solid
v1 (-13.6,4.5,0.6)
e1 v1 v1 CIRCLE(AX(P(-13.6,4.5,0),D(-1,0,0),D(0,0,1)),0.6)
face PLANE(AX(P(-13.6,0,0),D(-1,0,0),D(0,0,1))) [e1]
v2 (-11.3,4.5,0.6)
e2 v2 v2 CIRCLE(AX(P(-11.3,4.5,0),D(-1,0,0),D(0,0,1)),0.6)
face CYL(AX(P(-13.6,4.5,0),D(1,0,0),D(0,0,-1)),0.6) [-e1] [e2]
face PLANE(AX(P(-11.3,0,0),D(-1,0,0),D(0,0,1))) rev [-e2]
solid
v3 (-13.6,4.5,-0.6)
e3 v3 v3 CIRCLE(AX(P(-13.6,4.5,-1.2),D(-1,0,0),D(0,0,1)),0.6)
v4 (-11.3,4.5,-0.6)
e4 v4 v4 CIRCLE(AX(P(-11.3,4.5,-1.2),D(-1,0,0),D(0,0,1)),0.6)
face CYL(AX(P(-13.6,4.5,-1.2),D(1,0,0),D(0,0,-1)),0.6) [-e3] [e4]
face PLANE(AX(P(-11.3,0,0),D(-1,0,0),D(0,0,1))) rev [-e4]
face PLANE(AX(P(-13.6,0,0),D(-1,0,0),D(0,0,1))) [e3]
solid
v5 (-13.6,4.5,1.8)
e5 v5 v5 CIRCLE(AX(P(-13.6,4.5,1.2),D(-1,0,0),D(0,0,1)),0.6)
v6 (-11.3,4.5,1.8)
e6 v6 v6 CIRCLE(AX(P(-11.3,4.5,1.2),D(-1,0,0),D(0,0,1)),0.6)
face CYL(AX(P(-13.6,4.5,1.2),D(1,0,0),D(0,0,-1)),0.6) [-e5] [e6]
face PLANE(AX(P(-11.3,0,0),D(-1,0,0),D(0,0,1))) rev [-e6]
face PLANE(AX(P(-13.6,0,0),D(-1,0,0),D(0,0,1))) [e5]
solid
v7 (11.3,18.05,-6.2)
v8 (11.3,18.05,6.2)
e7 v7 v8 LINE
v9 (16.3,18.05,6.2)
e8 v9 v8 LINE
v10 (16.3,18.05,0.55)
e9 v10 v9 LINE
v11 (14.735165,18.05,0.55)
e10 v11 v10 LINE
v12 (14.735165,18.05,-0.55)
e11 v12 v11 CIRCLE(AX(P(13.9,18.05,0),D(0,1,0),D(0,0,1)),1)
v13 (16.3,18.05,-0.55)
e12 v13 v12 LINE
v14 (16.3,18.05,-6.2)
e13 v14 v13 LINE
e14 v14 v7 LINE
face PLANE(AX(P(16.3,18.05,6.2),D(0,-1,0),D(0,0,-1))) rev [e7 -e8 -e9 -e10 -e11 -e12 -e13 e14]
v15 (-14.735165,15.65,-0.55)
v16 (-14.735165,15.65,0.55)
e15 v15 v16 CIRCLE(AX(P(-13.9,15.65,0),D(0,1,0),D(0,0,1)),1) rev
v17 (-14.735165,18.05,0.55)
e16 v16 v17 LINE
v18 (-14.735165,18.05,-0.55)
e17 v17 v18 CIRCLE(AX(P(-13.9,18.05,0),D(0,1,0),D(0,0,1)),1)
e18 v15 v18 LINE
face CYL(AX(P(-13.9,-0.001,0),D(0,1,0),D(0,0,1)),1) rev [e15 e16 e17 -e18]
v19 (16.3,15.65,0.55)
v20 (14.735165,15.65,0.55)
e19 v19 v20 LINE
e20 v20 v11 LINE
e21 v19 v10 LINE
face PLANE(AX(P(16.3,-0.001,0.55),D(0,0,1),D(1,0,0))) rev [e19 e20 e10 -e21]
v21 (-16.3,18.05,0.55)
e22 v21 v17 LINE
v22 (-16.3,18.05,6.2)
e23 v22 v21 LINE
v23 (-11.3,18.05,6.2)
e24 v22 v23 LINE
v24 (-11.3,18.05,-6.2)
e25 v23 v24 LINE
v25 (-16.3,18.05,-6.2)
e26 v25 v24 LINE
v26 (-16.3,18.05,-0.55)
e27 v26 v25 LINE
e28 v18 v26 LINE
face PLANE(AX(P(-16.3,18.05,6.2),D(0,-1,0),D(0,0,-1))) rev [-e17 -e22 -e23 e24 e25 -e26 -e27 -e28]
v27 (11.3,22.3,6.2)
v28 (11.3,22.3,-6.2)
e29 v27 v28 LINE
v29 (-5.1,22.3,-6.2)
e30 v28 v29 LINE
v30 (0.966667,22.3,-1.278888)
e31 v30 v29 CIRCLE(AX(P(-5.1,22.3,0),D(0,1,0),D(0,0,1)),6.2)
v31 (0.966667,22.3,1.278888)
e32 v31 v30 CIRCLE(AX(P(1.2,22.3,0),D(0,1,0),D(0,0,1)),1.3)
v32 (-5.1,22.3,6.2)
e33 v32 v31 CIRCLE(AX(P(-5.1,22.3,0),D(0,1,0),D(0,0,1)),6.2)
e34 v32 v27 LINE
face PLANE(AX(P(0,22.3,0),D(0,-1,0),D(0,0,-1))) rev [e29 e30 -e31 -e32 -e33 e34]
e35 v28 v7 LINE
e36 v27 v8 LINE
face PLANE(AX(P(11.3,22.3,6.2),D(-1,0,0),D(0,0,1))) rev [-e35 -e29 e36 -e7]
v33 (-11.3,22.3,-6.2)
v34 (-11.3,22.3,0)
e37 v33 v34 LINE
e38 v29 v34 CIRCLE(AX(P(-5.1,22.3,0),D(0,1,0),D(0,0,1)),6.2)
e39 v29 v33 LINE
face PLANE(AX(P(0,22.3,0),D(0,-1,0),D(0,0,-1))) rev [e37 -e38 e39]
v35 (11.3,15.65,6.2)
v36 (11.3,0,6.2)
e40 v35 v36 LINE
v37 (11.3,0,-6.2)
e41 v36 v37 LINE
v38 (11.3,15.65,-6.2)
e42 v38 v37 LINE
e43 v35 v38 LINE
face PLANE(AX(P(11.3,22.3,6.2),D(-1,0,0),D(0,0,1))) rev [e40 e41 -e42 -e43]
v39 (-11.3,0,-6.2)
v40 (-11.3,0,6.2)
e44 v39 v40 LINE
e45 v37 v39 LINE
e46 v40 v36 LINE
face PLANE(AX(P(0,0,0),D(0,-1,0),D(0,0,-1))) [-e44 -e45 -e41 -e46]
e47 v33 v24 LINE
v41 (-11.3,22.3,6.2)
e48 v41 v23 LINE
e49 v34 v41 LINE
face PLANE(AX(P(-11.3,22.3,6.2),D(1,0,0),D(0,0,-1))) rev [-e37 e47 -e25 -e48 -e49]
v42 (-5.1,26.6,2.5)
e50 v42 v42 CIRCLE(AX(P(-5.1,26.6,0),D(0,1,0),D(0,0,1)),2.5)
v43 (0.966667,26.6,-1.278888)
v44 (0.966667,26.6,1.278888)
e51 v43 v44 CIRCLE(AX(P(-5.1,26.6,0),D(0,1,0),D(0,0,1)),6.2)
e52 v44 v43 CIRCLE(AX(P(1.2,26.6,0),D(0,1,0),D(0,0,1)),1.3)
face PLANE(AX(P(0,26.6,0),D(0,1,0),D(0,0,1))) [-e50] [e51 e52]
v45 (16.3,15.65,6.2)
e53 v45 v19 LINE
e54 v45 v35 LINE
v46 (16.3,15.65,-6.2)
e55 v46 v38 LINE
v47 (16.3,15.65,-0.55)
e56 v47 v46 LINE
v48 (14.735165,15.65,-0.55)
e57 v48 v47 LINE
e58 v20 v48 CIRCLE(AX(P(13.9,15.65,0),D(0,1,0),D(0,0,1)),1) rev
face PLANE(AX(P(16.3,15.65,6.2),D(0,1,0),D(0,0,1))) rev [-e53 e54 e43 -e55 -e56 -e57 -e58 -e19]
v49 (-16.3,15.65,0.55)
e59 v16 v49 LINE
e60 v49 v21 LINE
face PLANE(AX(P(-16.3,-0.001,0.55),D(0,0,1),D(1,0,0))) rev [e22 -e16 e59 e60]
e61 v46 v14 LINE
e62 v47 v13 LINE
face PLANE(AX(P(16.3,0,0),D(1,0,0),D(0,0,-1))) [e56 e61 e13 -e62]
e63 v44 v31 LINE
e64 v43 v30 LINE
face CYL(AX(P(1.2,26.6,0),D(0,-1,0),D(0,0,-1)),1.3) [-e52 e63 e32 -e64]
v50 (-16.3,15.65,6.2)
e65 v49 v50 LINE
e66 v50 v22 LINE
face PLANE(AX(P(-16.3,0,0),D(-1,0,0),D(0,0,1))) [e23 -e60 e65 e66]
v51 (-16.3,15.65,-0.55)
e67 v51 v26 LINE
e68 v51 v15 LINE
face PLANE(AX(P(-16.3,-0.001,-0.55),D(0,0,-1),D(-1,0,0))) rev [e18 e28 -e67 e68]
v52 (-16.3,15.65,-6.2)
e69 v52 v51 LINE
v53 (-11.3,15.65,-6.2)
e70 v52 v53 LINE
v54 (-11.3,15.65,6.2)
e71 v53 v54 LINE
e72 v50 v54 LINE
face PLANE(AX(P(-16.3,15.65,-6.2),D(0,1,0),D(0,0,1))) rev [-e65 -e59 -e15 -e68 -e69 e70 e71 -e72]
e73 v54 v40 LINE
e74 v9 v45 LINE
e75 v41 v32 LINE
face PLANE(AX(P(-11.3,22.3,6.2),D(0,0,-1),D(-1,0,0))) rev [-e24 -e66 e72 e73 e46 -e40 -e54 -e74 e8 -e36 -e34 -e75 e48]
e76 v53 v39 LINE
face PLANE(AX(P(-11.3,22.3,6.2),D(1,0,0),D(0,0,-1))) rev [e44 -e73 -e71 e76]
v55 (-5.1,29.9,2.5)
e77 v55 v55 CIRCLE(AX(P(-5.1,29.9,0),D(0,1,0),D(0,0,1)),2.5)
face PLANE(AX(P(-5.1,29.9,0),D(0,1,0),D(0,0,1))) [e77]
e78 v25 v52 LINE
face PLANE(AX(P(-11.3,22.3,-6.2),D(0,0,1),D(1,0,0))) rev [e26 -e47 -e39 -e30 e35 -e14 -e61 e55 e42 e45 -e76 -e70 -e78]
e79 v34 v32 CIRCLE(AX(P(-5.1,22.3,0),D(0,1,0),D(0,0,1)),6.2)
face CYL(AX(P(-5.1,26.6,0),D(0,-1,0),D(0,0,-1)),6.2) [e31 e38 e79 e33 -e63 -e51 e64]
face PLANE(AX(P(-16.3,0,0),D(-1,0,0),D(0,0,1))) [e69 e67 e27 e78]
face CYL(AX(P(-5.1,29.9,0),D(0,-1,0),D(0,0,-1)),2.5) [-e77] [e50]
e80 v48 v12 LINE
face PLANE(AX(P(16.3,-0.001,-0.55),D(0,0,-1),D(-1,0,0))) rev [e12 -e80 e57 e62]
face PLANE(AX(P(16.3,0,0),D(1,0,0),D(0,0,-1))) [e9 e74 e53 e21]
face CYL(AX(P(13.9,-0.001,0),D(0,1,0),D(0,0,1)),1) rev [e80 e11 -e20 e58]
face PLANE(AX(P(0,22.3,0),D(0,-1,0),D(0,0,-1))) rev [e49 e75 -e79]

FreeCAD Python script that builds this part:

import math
import FreeCAD as App
import Part
import Sketcher
from FreeCAD import Vector
Q = App.Units.Quantity


def add_polygon(sketch, points):
    """Adds a closed chain of lines whose ends are joined by coincident constraints."""
    first, n = sketch.GeometryCount, len(points)
    for a, b in zip(points, points[1:] + points[:1]):
        sketch.addGeometry(Part.LineSegment(App.Vector(*a, 0), App.Vector(*b, 0)), False)
    for i in range(n):
        sketch.addConstraint(Sketcher.Constraint("Coincident", first + i, 2, first + (i + 1) % n, 1))

doc = App.newDocument("Part")
params = doc.addObject("Spreadsheet::Sheet", "Params")
for row, (alias, value) in enumerate([
    ("sketch1_width", "22.6 mm"),
    ("sketch1_height", "12.4 mm"),
    ("pad1_length", "22.3 mm"),
    ("sketch2_width", "2.4 mm"),
    ("sketch2_height", "12.4 mm"),
    ("pad2_length", "5 mm"),
    ("sketch3_width", "2.4 mm"),
    ("sketch3_height", "12.4 mm"),
    ("pad3_length", "5 mm"),
    ("sketch4_radius", "1 mm"),
    ("sketch4_height", "1.1 mm"),
    ("sketch5_radius", "1 mm"),
    ("sketch5_height", "1.1 mm"),
    ("sketch6_radius", "1.3 mm"),
    ("sketch6_radius2", "6.2 mm"),
    ("pad4_length", "4.3 mm"),
    ("sketch7_diameter", "5 mm"),
    ("pad5_length", "3.3 mm"),
    ("sketch8_diameter", "1.2 mm"),
    ("pad6_length", "2.3 mm"),
    ("sketch9_diameter", "1.2 mm"),
    ("pad7_length", "2.3 mm"),
    ("sketch10_diameter", "1.2 mm"),
    ("pad8_length", "2.3 mm"),
], start=1):
    params.set(f"A{row}", alias)
    params.set(f"B{row}", "=" + value)
    params.setAlias(f"B{row}", alias)

body = doc.addObject("PartDesign::Body", "Body")

# Sketch on XZ plane
sketch1 = body.newObject("Sketcher::SketchObject", "Sketch")
sketch1.AttachmentSupport = (doc.getObject("XZ_Plane"), [""])
sketch1.MapMode = "FlatFace"
add_polygon(sketch1, [(-11, -6), (-11, 6), (11, 6), (11, -6)])  # lines 0-3
sketch1.addConstraint([
    Sketcher.Constraint("Vertical", 0),
    Sketcher.Constraint("Horizontal", 1),
    Sketcher.Constraint("Vertical", 2),
    Sketcher.Constraint("Horizontal", 3),
    Sketcher.Constraint("Symmetric", 0, 2, 2, 2, -1, 1),
    Sketcher.Constraint("DistanceX", 1, 1, 1, 2, Q("22.6 mm")),
    Sketcher.Constraint("DistanceY", 0, 1, 0, 2, Q("12.4 mm")),
])
sketch1.setExpression("Constraints[9]", "Params.sketch1_width")
sketch1.setExpression("Constraints[10]", "Params.sketch1_height")
pad1 = body.newObject("PartDesign::Pad", "Pad")
pad1.Profile = sketch1
pad1.setExpression("Length", "Params.pad1_length")
pad1.Reversed = True

# Sketch on YZ plane
sketch2 = body.newObject("Sketcher::SketchObject", "Sketch001")
sketch2.AttachmentSupport = (doc.getObject("YZ_Plane"), [""])
sketch2.MapMode = "FlatFace"
sketch2.AttachmentOffset = App.Placement(Vector(0, 0, 11.3), App.Rotation())
add_polygon(sketch2, [(18.1, 6.2), (15.7, 6.2), (15.7, -6.2), (18.1, -6.2)])  # lines 0-3
sketch2.addConstraint([
    Sketcher.Constraint("Horizontal", 0),
    Sketcher.Constraint("Vertical", 1),
    Sketcher.Constraint("Horizontal", 2),
    Sketcher.Constraint("Vertical", 3),
    Sketcher.Constraint("DistanceX", 0, 2, 0, 1, Q("2.4 mm")),
    Sketcher.Constraint("DistanceY", 1, 2, 1, 1, Q("12.4 mm")),
    Sketcher.Constraint("DistanceY", -1, 1, 0, 2, Q("6.2 mm")),
    Sketcher.Constraint("DistanceX", -1, 1, 0, 2, Q("15.65 mm")),
])
sketch2.setExpression("Constraints[8]", "Params.sketch2_width")
sketch2.setExpression("Constraints[9]", "Params.sketch2_height")
pad2 = body.newObject("PartDesign::Pad", "Pad001")
pad2.Profile = sketch2
pad2.setExpression("Length", "Params.pad2_length")

# Sketch on YZ plane
sketch3 = body.newObject("Sketcher::SketchObject", "Sketch002")
sketch3.AttachmentSupport = (doc.getObject("YZ_Plane"), [""])
sketch3.MapMode = "FlatFace"
sketch3.AttachmentOffset = App.Placement(Vector(0, 0, -11.3), App.Rotation())
add_polygon(sketch3, [(18.1, -6.2), (15.7, -6.2), (15.7, 6.2), (18.1, 6.2)])  # lines 0-3
sketch3.addConstraint([
    Sketcher.Constraint("Horizontal", 0),
    Sketcher.Constraint("Vertical", 1),
    Sketcher.Constraint("Horizontal", 2),
    Sketcher.Constraint("Vertical", 3),
    Sketcher.Constraint("DistanceX", 0, 2, 0, 1, Q("2.4 mm")),
    Sketcher.Constraint("DistanceY", 1, 1, 1, 2, Q("12.4 mm")),
    Sketcher.Constraint("DistanceY", 0, 2, -1, 1, Q("6.2 mm")),
    Sketcher.Constraint("DistanceX", -1, 1, 0, 2, Q("15.65 mm")),
])
sketch3.setExpression("Constraints[8]", "Params.sketch3_width")
sketch3.setExpression("Constraints[9]", "Params.sketch3_height")
pad3 = body.newObject("PartDesign::Pad", "Pad002")
pad3.Profile = sketch3
pad3.setExpression("Length", "Params.pad3_length")
pad3.Reversed = True

# Sketch on XZ plane
sketch4 = body.newObject("Sketcher::SketchObject", "Sketch003")
sketch4.AttachmentSupport = (doc.getObject("XZ_Plane"), [""])
sketch4.MapMode = "FlatFace"
sketch4.AttachmentOffset = App.Placement(Vector(0, 0, -18.05), App.Rotation())
sketch4.addGeometry([
    Part.LineSegment(Vector(-14.7, -0.6, 0), Vector(-16.3, -0.6, 0)),
    Part.LineSegment(Vector(-16.3, -0.6, 0), Vector(-16.3, 0.6, 0)),
    Part.LineSegment(Vector(-16.3, 0.6, 0), Vector(-14.7, 0.6, 0)),
    Part.ArcOfCircle(Part.Circle(Vector(-13.9, 0, 0), Vector(0, 0, 1), 1), math.radians(-147), math.radians(147)),
], False)
sketch4.addConstraint([
    Sketcher.Constraint("Coincident", 0, 2, 1, 1),
    Sketcher.Constraint("Coincident", 1, 2, 2, 1),
    Sketcher.Constraint("Coincident", 2, 2, 3, 2),
    Sketcher.Constraint("Coincident", 3, 1, 0, 1),
    Sketcher.Constraint("Horizontal", 0),
    Sketcher.Constraint("Vertical", 1),
    Sketcher.Constraint("Horizontal", 2),
    Sketcher.Constraint("Symmetric", 2, 2, 3, 1, -1),
    Sketcher.Constraint("Radius", 3, Q("1 mm")),
    Sketcher.Constraint("DistanceY", 1, 1, 1, 2, Q("1.1 mm")),
    Sketcher.Constraint("DistanceX", 3, 3, -1, 1, Q("13.9 mm")),
    Sketcher.Constraint("DistanceX", 0, 2, -1, 1, Q("16.3 mm")),
])
sketch4.setExpression("Constraints[8]", "Params.sketch4_radius")
sketch4.setExpression("Constraints[9]", "Params.sketch4_height")
pocket1 = body.newObject("PartDesign::Pocket", "Pocket")
pocket1.Profile = sketch4
pocket1.Type = "UpToFirst"
pocket1.Reversed = True

# Sketch on XZ plane
sketch5 = body.newObject("Sketcher::SketchObject", "Sketch004")
sketch5.AttachmentSupport = (doc.getObject("XZ_Plane"), [""])
sketch5.MapMode = "FlatFace"
sketch5.AttachmentOffset = App.Placement(Vector(0, 0, -18.05), App.Rotation())
sketch5.addGeometry([
    Part.LineSegment(Vector(14.7, 0.6, 0), Vector(16.3, 0.6, 0)),
    Part.LineSegment(Vector(16.3, 0.6, 0), Vector(16.3, -0.6, 0)),
    Part.LineSegment(Vector(16.3, -0.6, 0), Vector(14.7, -0.6, 0)),
    Part.ArcOfCircle(Part.Circle(Vector(13.9, 0, 0), Vector(0, 0, 1), 1), math.radians(33), math.radians(327)),
], False)
sketch5.addConstraint([
    Sketcher.Constraint("Coincident", 0, 2, 1, 1),
    Sketcher.Constraint("Coincident", 1, 2, 2, 1),
    Sketcher.Constraint("Coincident", 2, 2, 3, 2),
    Sketcher.Constraint("Coincident", 3, 1, 0, 1),
    Sketcher.Constraint("Horizontal", 0),
    Sketcher.Constraint("Vertical", 1),
    Sketcher.Constraint("Horizontal", 2),
    Sketcher.Constraint("Symmetric", 2, 2, 3, 1, -1),
    Sketcher.Constraint("Radius", 3, Q("1 mm")),
    Sketcher.Constraint("DistanceY", 1, 2, 1, 1, Q("1.1 mm")),
    Sketcher.Constraint("DistanceX", -1, 1, 3, 3, Q("13.9 mm")),
    Sketcher.Constraint("DistanceX", -1, 1, 0, 2, Q("16.3 mm")),
])
sketch5.setExpression("Constraints[8]", "Params.sketch5_radius")
sketch5.setExpression("Constraints[9]", "Params.sketch5_height")
pocket2 = body.newObject("PartDesign::Pocket", "Pocket001")
pocket2.Profile = sketch5
pocket2.Type = "UpToFirst"
pocket2.Reversed = True

# Sketch on XZ plane
sketch6 = body.newObject("Sketcher::SketchObject", "Sketch005")
sketch6.AttachmentSupport = (doc.getObject("XZ_Plane"), [""])
sketch6.MapMode = "FlatFace"
sketch6.AttachmentOffset = App.Placement(Vector(0, 0, -22.3), App.Rotation())
sketch6.addGeometry([
    Part.ArcOfCircle(Part.Circle(Vector(1.2, 0, 0), Vector(0, 0, 1), 1.3), math.radians(-100), math.radians(100)),
    Part.ArcOfCircle(Part.Circle(Vector(-5.1, 0, 0), Vector(0, 0, 1), 6.2), math.radians(12), math.radians(348)),
], False)
sketch6.addConstraint([
    Sketcher.Constraint("Coincident", 0, 1, 1, 2),
    Sketcher.Constraint("Coincident", 1, 1, 0, 2),
    Sketcher.Constraint("Symmetric", 0, 1, 1, 1, -1),
    Sketcher.Constraint("Radius", 0, Q("1.3 mm")),
    Sketcher.Constraint("Radius", 1, Q("6.2 mm")),
    Sketcher.Constraint("DistanceX", -1, 1, 0, 3, Q("1.2 mm")),
    Sketcher.Constraint("DistanceX", 1, 3, -1, 1, Q("5.1 mm")),
])
sketch6.setExpression("Constraints[3]", "Params.sketch6_radius")
sketch6.setExpression("Constraints[4]", "Params.sketch6_radius2")
pad4 = body.newObject("PartDesign::Pad", "Pad003")
pad4.Profile = sketch6
pad4.setExpression("Length", "Params.pad4_length")
pad4.Reversed = True

# Sketch on XZ plane
sketch7 = body.newObject("Sketcher::SketchObject", "Sketch006")
sketch7.AttachmentSupport = (doc.getObject("XZ_Plane"), [""])
sketch7.MapMode = "FlatFace"
sketch7.AttachmentOffset = App.Placement(Vector(0, 0, -26.6), App.Rotation())
sketch7.addGeometry(Part.Circle(Vector(-5.1, 0, 0), Vector(0, 0, 1), 2.5), False)
sketch7.addConstraint([
    Sketcher.Constraint("PointOnObject", 0, 3, -1),
    Sketcher.Constraint("Diameter", 0, Q("5 mm")),
    Sketcher.Constraint("DistanceX", 0, 3, -1, 1, Q("5.1 mm")),
])
sketch7.setExpression("Constraints[1]", "Params.sketch7_diameter")
pad5 = body.newObject("PartDesign::Pad", "Pad004")
pad5.Profile = sketch7
pad5.setExpression("Length", "Params.pad5_length")
pad5.Reversed = True
body2 = doc.addObject("PartDesign::Body", "Body001")

# Sketch on YZ plane
sketch8 = body2.newObject("Sketcher::SketchObject", "Sketch007")
sketch8.AttachmentSupport = (doc.getObject("YZ_Plane001"), [""])
sketch8.MapMode = "FlatFace"
sketch8.AttachmentOffset = App.Placement(Vector(0, 0, -11.3), App.Rotation())
sketch8.addGeometry(Part.Circle(Vector(4.5, 0, 0), Vector(0, 0, 1), 0.6), False)
sketch8.addConstraint([
    Sketcher.Constraint("PointOnObject", 0, 3, -1),
    Sketcher.Constraint("Diameter", 0, Q("1.2 mm")),
    Sketcher.Constraint("DistanceX", -1, 1, 0, 3, Q("4.5 mm")),
])
sketch8.setExpression("Constraints[1]", "Params.sketch8_diameter")
pad6 = body2.newObject("PartDesign::Pad", "Pad005")
pad6.Profile = sketch8
pad6.setExpression("Length", "Params.pad6_length")
pad6.Reversed = True
body3 = doc.addObject("PartDesign::Body", "Body002")

# Sketch on YZ plane
sketch9 = body3.newObject("Sketcher::SketchObject", "Sketch008")
sketch9.AttachmentSupport = (doc.getObject("YZ_Plane002"), [""])
sketch9.MapMode = "FlatFace"
sketch9.AttachmentOffset = App.Placement(Vector(0, 0, -11.3), App.Rotation())
sketch9.addGeometry(Part.Circle(Vector(4.5, -1.2, 0), Vector(0, 0, 1), 0.6), False)
sketch9.addConstraint([
    Sketcher.Constraint("Diameter", 0, Q("1.2 mm")),
    Sketcher.Constraint("DistanceX", -1, 1, 0, 3, Q("4.5 mm")),
    Sketcher.Constraint("DistanceY", 0, 3, -1, 1, Q("1.2 mm")),
])
sketch9.setExpression("Constraints[0]", "Params.sketch9_diameter")
pad7 = body3.newObject("PartDesign::Pad", "Pad006")
pad7.Profile = sketch9
pad7.setExpression("Length", "Params.pad7_length")
pad7.Reversed = True
body4 = doc.addObject("PartDesign::Body", "Body003")

# Sketch on YZ plane
sketch10 = body4.newObject("Sketcher::SketchObject", "Sketch009")
sketch10.AttachmentSupport = (doc.getObject("YZ_Plane003"), [""])
sketch10.MapMode = "FlatFace"
sketch10.AttachmentOffset = App.Placement(Vector(0, 0, -11.3), App.Rotation())
sketch10.addGeometry(Part.Circle(Vector(4.5, 1.2, 0), Vector(0, 0, 1), 0.6), False)
sketch10.addConstraint([
    Sketcher.Constraint("Diameter", 0, Q("1.2 mm")),
    Sketcher.Constraint("DistanceX", -1, 1, 0, 3, Q("4.5 mm")),
    Sketcher.Constraint("DistanceY", -1, 1, 0, 3, Q("1.2 mm")),
])
sketch10.setExpression("Constraints[0]", "Params.sketch10_diameter")
pad8 = body4.newObject("PartDesign::Pad", "Pad007")
pad8.Profile = sketch10
pad8.setExpression("Length", "Params.pad8_length")
pad8.Reversed = True

doc.recompute()
